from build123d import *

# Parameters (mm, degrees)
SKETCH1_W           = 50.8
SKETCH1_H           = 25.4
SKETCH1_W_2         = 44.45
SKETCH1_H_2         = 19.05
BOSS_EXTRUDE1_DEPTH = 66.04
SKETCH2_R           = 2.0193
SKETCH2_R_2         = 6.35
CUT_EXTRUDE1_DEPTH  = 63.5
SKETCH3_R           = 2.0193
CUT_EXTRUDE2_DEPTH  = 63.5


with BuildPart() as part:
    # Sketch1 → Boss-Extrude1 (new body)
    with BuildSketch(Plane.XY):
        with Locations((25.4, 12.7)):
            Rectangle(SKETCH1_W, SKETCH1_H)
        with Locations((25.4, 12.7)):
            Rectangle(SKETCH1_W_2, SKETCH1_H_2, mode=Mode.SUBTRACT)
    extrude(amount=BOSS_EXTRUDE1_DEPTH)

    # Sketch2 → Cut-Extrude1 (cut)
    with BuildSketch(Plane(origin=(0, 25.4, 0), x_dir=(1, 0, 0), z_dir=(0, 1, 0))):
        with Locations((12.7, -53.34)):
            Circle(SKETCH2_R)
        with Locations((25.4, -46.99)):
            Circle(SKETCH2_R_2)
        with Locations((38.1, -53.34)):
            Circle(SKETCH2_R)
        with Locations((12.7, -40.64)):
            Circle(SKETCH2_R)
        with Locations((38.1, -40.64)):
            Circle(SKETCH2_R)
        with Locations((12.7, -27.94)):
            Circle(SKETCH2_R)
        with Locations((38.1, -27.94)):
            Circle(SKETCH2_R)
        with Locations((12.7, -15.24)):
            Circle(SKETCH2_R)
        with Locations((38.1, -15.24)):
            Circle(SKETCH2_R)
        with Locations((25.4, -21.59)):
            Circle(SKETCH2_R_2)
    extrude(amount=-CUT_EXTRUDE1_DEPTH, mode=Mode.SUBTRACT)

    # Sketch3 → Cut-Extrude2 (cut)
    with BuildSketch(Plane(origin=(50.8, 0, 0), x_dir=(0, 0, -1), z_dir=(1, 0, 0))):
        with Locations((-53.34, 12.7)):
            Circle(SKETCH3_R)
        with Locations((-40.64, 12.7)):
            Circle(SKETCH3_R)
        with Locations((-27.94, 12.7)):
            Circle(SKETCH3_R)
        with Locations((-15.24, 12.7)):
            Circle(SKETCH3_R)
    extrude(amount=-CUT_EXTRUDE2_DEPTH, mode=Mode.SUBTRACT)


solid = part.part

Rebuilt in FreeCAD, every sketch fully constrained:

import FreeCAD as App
import Part
import Sketcher
Q = App.Units.Quantity


def add_polygon(sketch, points):
    """Adds a closed chain of lines whose ends are joined by coincident constraints."""
    first, n = sketch.GeometryCount, len(points)
    for a, b in zip(points, points[1:] + points[:1]):
        sketch.addGeometry(Part.LineSegment(App.Vector(*a, 0), App.Vector(*b, 0)), False)
    for i in range(n):
        sketch.addConstraint(Sketcher.Constraint("Coincident", first + i, 2, first + (i + 1) % n, 1))

doc = App.newDocument("Part")
body = doc.addObject("PartDesign::Body", "Body")

sketch1 = body.newObject("Sketcher::SketchObject", "Sketch")
sketch1.AttachmentSupport = (doc.getObject("XY_Plane"), [""])
sketch1.MapMode = "FlatFace"
add_polygon(sketch1, [(0, 25.4), (0, 0), (50.8, 0), (50.8, 25.4)])
add_polygon(sketch1, [(47.625, 3.175), (3.175, 3.175), (3.175, 22.225), (47.625, 22.225)])
sketch1.addConstraint(Sketcher.Constraint("Vertical", 0))
sketch1.addConstraint(Sketcher.Constraint("Horizontal", 1))
sketch1.addConstraint(Sketcher.Constraint("Vertical", 2))
sketch1.addConstraint(Sketcher.Constraint("Horizontal", 3))
sketch1.addConstraint(Sketcher.Constraint("Horizontal", 4))
sketch1.addConstraint(Sketcher.Constraint("Vertical", 5))
sketch1.addConstraint(Sketcher.Constraint("Horizontal", 6))
sketch1.addConstraint(Sketcher.Constraint("Vertical", 7))
sketch1.addConstraint(Sketcher.Constraint("Coincident", 0, 2, -1, 1))
sketch1.addConstraint(Sketcher.Constraint("DistanceX", 1, 1, 1, 2, Q("2 in")))
sketch1.addConstraint(Sketcher.Constraint("DistanceY", 0, 2, 0, 1, Q("1 in")))
sketch1.addConstraint(Sketcher.Constraint("DistanceX", 4, 2, 4, 1, Q("1.75 in")))
sketch1.addConstraint(Sketcher.Constraint("DistanceY", 5, 1, 5, 2, Q("0.75 in")))
sketch1.addConstraint(Sketcher.Constraint("DistanceX", -1, 1, 4, 2, Q("0.125 in")))
sketch1.addConstraint(Sketcher.Constraint("DistanceY", -1, 1, 4, 2, Q("0.125 in")))
pad1 = body.newObject("PartDesign::Pad", "Pad")
pad1.Profile = sketch1
pad1.Length = Q("2.6 in")

sketch2 = body.newObject("Sketcher::SketchObject", "Sketch001")
sketch2.AttachmentSupport = (doc.getObject("XZ_Plane"), [""])
sketch2.MapMode = "FlatFace"
sketch2.AttachmentOffset = App.Placement(App.Vector(0, 0, -1 * 25.4), App.Rotation())
sketch2.addGeometry(Part.Circle(App.Vector(12.7, 53.34, 0), App.Vector(0, 0, 1), 2.0193), False)
sketch2.addGeometry(Part.Circle(App.Vector(25.4, 46.99, 0), App.Vector(0, 0, 1), 6.35), False)
sketch2.addGeometry(Part.Circle(App.Vector(38.1, 53.34, 0), App.Vector(0, 0, 1), 2.0193), False)
sketch2.addGeometry(Part.Circle(App.Vector(12.7, 40.64, 0), App.Vector(0, 0, 1), 2.0193), False)
sketch2.addGeometry(Part.Circle(App.Vector(38.1, 40.64, 0), App.Vector(0, 0, 1), 2.0193), False)
sketch2.addGeometry(Part.Circle(App.Vector(12.7, 27.94, 0), App.Vector(0, 0, 1), 2.0193), False)
sketch2.addGeometry(Part.Circle(App.Vector(38.1, 27.94, 0), App.Vector(0, 0, 1), 2.0193), False)
sketch2.addGeometry(Part.Circle(App.Vector(12.7, 15.24, 0), App.Vector(0, 0, 1), 2.0193), False)
sketch2.addGeometry(Part.Circle(App.Vector(38.1, 15.24, 0), App.Vector(0, 0, 1), 2.0193), False)
sketch2.addGeometry(Part.Circle(App.Vector(25.4, 21.59, 0), App.Vector(0, 0, 1), 6.35), False)
sketch2.addConstraint(Sketcher.Constraint("Equal", 0, 2))
sketch2.addConstraint(Sketcher.Constraint("Equal", 2, 3))
sketch2.addConstraint(Sketcher.Constraint("Equal", 3, 4))
sketch2.addConstraint(Sketcher.Constraint("Equal", 4, 5))
sketch2.addConstraint(Sketcher.Constraint("Equal", 5, 6))
sketch2.addConstraint(Sketcher.Constraint("Equal", 6, 7))
sketch2.addConstraint(Sketcher.Constraint("Equal", 7, 8))
sketch2.addConstraint(Sketcher.Constraint("Equal", 1, 9))
sketch2.addConstraint(Sketcher.Constraint("Horizontal", 0, 3, 2, 3))
sketch2.addConstraint(Sketcher.Constraint("Horizontal", 3, 3, 4, 3))
sketch2.addConstraint(Sketcher.Constraint("Horizontal", 5, 3, 6, 3))
sketch2.addConstraint(Sketcher.Constraint("Horizontal", 7, 3, 8, 3))
sketch2.addConstraint(Sketcher.Constraint("Vertical", 0, 3, 3, 3))
sketch2.addConstraint(Sketcher.Constraint("Vertical", 2, 3, 4, 3))
sketch2.addConstraint(Sketcher.Constraint("Vertical", 3, 3, 5, 3))
sketch2.addConstraint(Sketcher.Constraint("Vertical", 4, 3, 6, 3))
sketch2.addConstraint(Sketcher.Constraint("Vertical", 5, 3, 7, 3))
sketch2.addConstraint(Sketcher.Constraint("Vertical", 6, 3, 8, 3))
sketch2.addConstraint(Sketcher.Constraint("Vertical", 1, 3, 9, 3))
sketch2.addConstraint(Sketcher.Constraint("Diameter", 1, Q("0.5 in")))
sketch2.addConstraint(Sketcher.Constraint("Diameter", 0, Q("0.159 in")))
sketch2.addConstraint(Sketcher.Constraint("DistanceX", -1, 1, 1, 3, Q("1 in")))
sketch2.addConstraint(Sketcher.Constraint("DistanceX", 0, 3, 2, 3, Q("1 in")))
sketch2.addConstraint(Sketcher.Constraint("DistanceY", 5, 3, 0, 3, Q("1 in")))
sketch2.addConstraint(Sketcher.Constraint("DistanceY", 7, 3, 3, 3, Q("1 in")))
sketch2.addConstraint(Sketcher.Constraint("DistanceX", -1, 1, 0, 3, Q("0.5 in")))
sketch2.addConstraint(Sketcher.Constraint("DistanceY", -1, 1, 0, 3, Q("2.1 in")))
sketch2.addConstraint(Sketcher.Constraint("DistanceY", -1, 1, 3, 3, Q("1.6 in")))
sketch2.addConstraint(Sketcher.Constraint("DistanceY", -1, 1, 1, 3, Q("1.85 in")))
sketch2.addConstraint(Sketcher.Constraint("DistanceY", -1, 1, 9, 3, Q("0.85 in")))
pocket1 = body.newObject("PartDesign::Pocket", "Pocket")
pocket1.Profile = sketch2
pocket1.Length = Q("2.5 in")
pocket1.Reversed = True

sketch3 = body.newObject("Sketcher::SketchObject", "Sketch002")
sketch3.AttachmentSupport = (doc.getObject("YZ_Plane"), [""])
sketch3.MapMode = "FlatFace"
sketch3.AttachmentOffset = App.Placement(App.Vector(0, 0, 2 * 25.4), App.Rotation())
sketch3.addGeometry(Part.Circle(App.Vector(12.7, 53.34, 0), App.Vector(0, 0, 1), 2.0193), False)
sketch3.addGeometry(Part.Circle(App.Vector(12.7, 40.64, 0), App.Vector(0, 0, 1), 2.0193), False)
sketch3.addGeometry(Part.Circle(App.Vector(12.7, 27.94, 0), App.Vector(0, 0, 1), 2.0193), False)
sketch3.addGeometry(Part.Circle(App.Vector(12.7, 15.24, 0), App.Vector(0, 0, 1), 2.0193), False)
sketch3.addConstraint(Sketcher.Constraint("Equal", 0, 1))
sketch3.addConstraint(Sketcher.Constraint("Equal", 1, 2))
sketch3.addConstraint(Sketcher.Constraint("Equal", 2, 3))
sketch3.addConstraint(Sketcher.Constraint("Vertical", 0, 3, 1, 3))
sketch3.addConstraint(Sketcher.Constraint("Vertical", 1, 3, 2, 3))
sketch3.addConstraint(Sketcher.Constraint("Vertical", 2, 3, 3, 3))
sketch3.addConstraint(Sketcher.Constraint("Diameter", 0, Q("0.159 in")))
sketch3.addConstraint(Sketcher.Constraint("DistanceY", 2, 3, 0, 3, Q("1 in")))
sketch3.addConstraint(Sketcher.Constraint("DistanceY", 3, 3, 1, 3, Q("1 in")))
sketch3.addConstraint(Sketcher.Constraint("DistanceX", -1, 1, 0, 3, Q("0.5 in")))
sketch3.addConstraint(Sketcher.Constraint("DistanceY", -1, 1, 0, 3, Q("2.1 in")))
sketch3.addConstraint(Sketcher.Constraint("DistanceY", -1, 1, 1, 3, Q("1.6 in")))
pocket2 = body.newObject("PartDesign::Pocket", "Pocket001")
pocket2.Profile = sketch3
pocket2.Length = Q("2.5 in")

doc.recompute()
